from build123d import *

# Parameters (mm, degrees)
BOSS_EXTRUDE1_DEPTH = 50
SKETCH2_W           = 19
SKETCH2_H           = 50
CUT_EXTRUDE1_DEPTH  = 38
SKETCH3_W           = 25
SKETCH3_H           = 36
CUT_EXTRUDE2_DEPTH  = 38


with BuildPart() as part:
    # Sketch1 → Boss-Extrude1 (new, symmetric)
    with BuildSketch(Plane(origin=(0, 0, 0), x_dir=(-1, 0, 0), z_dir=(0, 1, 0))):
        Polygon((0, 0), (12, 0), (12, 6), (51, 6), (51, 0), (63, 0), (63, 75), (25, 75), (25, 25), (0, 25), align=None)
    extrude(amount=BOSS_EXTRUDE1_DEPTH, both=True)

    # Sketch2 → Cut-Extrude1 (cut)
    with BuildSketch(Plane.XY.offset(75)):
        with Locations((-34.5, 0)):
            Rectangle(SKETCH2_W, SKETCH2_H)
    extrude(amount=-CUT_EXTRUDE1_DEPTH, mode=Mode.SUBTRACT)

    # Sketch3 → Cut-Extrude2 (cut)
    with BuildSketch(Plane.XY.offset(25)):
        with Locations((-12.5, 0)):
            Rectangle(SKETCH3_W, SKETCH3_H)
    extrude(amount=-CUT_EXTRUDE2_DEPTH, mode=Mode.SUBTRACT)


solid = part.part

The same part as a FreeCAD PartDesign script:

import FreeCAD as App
import Part
import Sketcher
Q = App.Units.Quantity

doc = App.newDocument("Part")
body = doc.addObject("PartDesign::Body", "Body")

# Sketch on XZ plane
sketch1 = doc.addObject("Sketcher::SketchObject", "Sketch")
body.addObject(sketch1)
sketch1.AttachmentSupport = (doc.XZ_Plane, [""])
sketch1.MapMode = "FlatFace"
sketch1.addGeometry([
    Part.LineSegment(App.Vector(0, 0, 0), App.Vector(-12, 0, 0)),  # 0
    Part.LineSegment(App.Vector(-12, 0, 0), App.Vector(-12, 6, 0)),  # 1
    Part.LineSegment(App.Vector(-12, 6, 0), App.Vector(-51, 6, 0)),  # 2
    Part.LineSegment(App.Vector(-51, 6, 0), App.Vector(-51, 0, 0)),  # 3
    Part.LineSegment(App.Vector(-51, 0, 0), App.Vector(-63, 0, 0)),  # 4
    Part.LineSegment(App.Vector(-63, 0, 0), App.Vector(-63, 75, 0)),  # 5
    Part.LineSegment(App.Vector(-63, 75, 0), App.Vector(-25, 75, 0)),  # 6
    Part.LineSegment(App.Vector(-25, 75, 0), App.Vector(-25, 25, 0)),  # 7
    Part.LineSegment(App.Vector(-25, 25, 0), App.Vector(0, 25, 0)),  # 8
    Part.LineSegment(App.Vector(0, 25, 0), App.Vector(0, 0, 0)),  # 9
], False)
sketch1.addConstraint([
    Sketcher.Constraint("Coincident", 0, 2, 1, 1),
    Sketcher.Constraint("Coincident", 1, 2, 2, 1),
    Sketcher.Constraint("Coincident", 2, 2, 3, 1),
    Sketcher.Constraint("Coincident", 3, 2, 4, 1),
    Sketcher.Constraint("Coincident", 4, 2, 5, 1),
    Sketcher.Constraint("Coincident", 5, 2, 6, 1),
    Sketcher.Constraint("Coincident", 6, 2, 7, 1),
    Sketcher.Constraint("Coincident", 7, 2, 8, 1),
    Sketcher.Constraint("Coincident", 8, 2, 9, 1),
    Sketcher.Constraint("Coincident", 9, 2, 0, 1),
    Sketcher.Constraint("Horizontal", 0),
    Sketcher.Constraint("Vertical", 1),
    Sketcher.Constraint("Horizontal", 2),
    Sketcher.Constraint("Vertical", 3),
    Sketcher.Constraint("Horizontal", 4),
    Sketcher.Constraint("Vertical", 5),
    Sketcher.Constraint("Horizontal", 6),
    Sketcher.Constraint("Vertical", 7),
    Sketcher.Constraint("Horizontal", 8),
    Sketcher.Constraint("Vertical", 9),
    Sketcher.Constraint("Coincident", 9, 2, -1, 1),
    Sketcher.Constraint("PointOnObject", 3, 2, -1),
    Sketcher.Constraint("Equal", 0, 4),
    Sketcher.Constraint("Equal", 8, 9),
    Sketcher.Constraint("DistanceX", 0, 2, 0, 1, Q("12 mm")),
    Sketcher.Constraint("DistanceX", 2, 2, 2, 1, Q("39 mm")),
    Sketcher.Constraint("DistanceX", 6, 1, 6, 2, Q("38 mm")),
    Sketcher.Constraint("DistanceY", 1, 1, 1, 2, Q("6 mm")),
    Sketcher.Constraint("DistanceY", 5, 1, 5, 2, Q("75 mm")),
])
pad1 = doc.addObject("PartDesign::Pad", "Pad")
body.addObject(pad1)
pad1.Profile = sketch1
pad1.Length = 100
pad1.Midplane = True

# Sketch on XY plane
sketch2 = doc.addObject("Sketcher::SketchObject", "Sketch001")
body.addObject(sketch2)
sketch2.AttachmentSupport = (doc.XY_Plane, [""])
sketch2.MapMode = "FlatFace"
sketch2.AttachmentOffset = App.Placement(App.Vector(0, 0, 75), App.Rotation())
sketch2.addGeometry([
    Part.LineSegment(App.Vector(-44, 25, 0), App.Vector(-44, -25, 0)),
    Part.LineSegment(App.Vector(-44, -25, 0), App.Vector(-25, -25, 0)),
    Part.LineSegment(App.Vector(-25, -25, 0), App.Vector(-25, 25, 0)),
    Part.LineSegment(App.Vector(-25, 25, 0), App.Vector(-44, 25, 0)),
], False)
sketch2.addConstraint([
    Sketcher.Constraint("Coincident", 0, 2, 1, 1),
    Sketcher.Constraint("Coincident", 1, 2, 2, 1),
    Sketcher.Constraint("Coincident", 2, 2, 3, 1),
    Sketcher.Constraint("Coincident", 3, 2, 0, 1),
    Sketcher.Constraint("Vertical", 0),
    Sketcher.Constraint("Horizontal", 1),
    Sketcher.Constraint("Vertical", 2),
    Sketcher.Constraint("Horizontal", 3),
    Sketcher.Constraint("DistanceX", 1, 1, 1, 2, Q("19 mm")),
    Sketcher.Constraint("DistanceY", 0, 2, 0, 1, Q("50 mm")),
    Sketcher.Constraint("DistanceX", 0, 2, -1, 1, Q("44 mm")),
    Sketcher.Constraint("DistanceY", 0, 2, -1, 1, Q("25 mm")),
])
pocket1 = doc.addObject("PartDesign::Pocket", "Pocket")
body.addObject(pocket1)
pocket1.Profile = sketch2
pocket1.Length = 38

# Sketch on XY plane
sketch3 = doc.addObject("Sketcher::SketchObject", "Sketch002")
body.addObject(sketch3)
sketch3.AttachmentSupport = (doc.XY_Plane, [""])
sketch3.MapMode = "FlatFace"
sketch3.AttachmentOffset = App.Placement(App.Vector(0, 0, 25), App.Rotation())
sketch3.addGeometry([
    Part.LineSegment(App.Vector(-25, 18, 0), App.Vector(-25, -18, 0)),
    Part.LineSegment(App.Vector(-25, -18, 0), App.Vector(0, -18, 0)),
    Part.LineSegment(App.Vector(0, -18, 0), App.Vector(0, 18, 0)),
    Part.LineSegment(App.Vector(0, 18, 0), App.Vector(-25, 18, 0)),
], False)
sketch3.addConstraint([
    Sketcher.Constraint("Coincident", 0, 2, 1, 1),
    Sketcher.Constraint("Coincident", 1, 2, 2, 1),
    Sketcher.Constraint("Coincident", 2, 2, 3, 1),
    Sketcher.Constraint("Coincident", 3, 2, 0, 1),
    Sketcher.Constraint("Vertical", 0),
    Sketcher.Constraint("Horizontal", 1),
    Sketcher.Constraint("Vertical", 2),
    Sketcher.Constraint("Horizontal", 3),
    Sketcher.Constraint("Symmetric", 1, 2, 2, 2, -1, 1),
    Sketcher.Constraint("DistanceX", 1, 1, 1, 2, Q("25 mm")),
    Sketcher.Constraint("DistanceY", 0, 2, 0, 1, Q("36 mm")),
])
pocket2 = doc.addObject("PartDesign::Pocket", "Pocket001")
body.addObject(pocket2)
pocket2.Profile = sketch3
pocket2.Length = 38

doc.recompute()
